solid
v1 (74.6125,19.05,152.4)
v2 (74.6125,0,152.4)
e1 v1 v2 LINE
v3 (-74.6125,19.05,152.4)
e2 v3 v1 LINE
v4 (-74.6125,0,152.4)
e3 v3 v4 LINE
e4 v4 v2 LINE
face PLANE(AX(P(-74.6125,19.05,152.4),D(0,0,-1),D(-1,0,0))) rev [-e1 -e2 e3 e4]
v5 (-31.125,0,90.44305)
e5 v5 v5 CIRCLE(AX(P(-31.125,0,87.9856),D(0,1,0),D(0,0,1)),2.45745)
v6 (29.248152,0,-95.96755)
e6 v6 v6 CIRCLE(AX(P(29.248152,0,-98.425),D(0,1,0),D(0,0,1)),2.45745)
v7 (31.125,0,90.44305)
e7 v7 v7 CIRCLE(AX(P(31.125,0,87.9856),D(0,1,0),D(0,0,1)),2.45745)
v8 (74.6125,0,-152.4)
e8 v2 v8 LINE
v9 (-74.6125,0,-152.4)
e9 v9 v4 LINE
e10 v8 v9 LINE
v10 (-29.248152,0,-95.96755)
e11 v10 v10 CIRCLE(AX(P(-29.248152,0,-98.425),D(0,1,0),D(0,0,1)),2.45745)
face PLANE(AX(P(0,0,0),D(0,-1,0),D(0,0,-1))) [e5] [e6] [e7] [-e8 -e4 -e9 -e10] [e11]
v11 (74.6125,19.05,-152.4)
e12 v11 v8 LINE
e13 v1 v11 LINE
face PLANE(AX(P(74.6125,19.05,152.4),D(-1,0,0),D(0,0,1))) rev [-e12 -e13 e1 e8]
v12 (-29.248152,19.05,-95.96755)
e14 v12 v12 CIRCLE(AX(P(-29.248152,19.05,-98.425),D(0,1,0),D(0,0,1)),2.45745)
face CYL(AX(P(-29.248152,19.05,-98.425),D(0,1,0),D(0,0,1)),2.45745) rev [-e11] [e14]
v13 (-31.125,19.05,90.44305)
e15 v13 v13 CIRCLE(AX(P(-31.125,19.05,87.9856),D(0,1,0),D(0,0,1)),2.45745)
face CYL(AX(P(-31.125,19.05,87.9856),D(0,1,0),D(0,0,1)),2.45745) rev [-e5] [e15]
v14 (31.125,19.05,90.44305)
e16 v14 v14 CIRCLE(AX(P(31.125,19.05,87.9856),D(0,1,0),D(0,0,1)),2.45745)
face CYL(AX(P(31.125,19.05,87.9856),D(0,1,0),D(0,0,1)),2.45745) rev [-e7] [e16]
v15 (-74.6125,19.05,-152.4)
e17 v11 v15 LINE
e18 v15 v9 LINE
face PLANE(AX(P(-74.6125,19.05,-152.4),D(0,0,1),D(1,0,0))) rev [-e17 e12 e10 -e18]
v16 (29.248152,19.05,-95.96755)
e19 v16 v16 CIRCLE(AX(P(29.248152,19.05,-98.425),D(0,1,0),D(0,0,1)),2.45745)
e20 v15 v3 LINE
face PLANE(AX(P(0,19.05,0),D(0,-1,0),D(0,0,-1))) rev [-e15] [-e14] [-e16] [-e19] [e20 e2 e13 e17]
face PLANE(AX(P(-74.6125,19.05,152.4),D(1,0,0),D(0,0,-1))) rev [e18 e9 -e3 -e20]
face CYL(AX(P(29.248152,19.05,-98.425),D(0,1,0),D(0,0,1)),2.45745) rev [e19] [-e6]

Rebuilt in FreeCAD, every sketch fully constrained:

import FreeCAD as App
import Part
import Sketcher
from FreeCAD import Vector
Q = App.Units.Quantity


def add_polygon(sketch, points):
    """Adds a closed chain of lines whose ends are joined by coincident constraints."""
    first, n = sketch.GeometryCount, len(points)
    for a, b in zip(points, points[1:] + points[:1]):
        sketch.addGeometry(Part.LineSegment(App.Vector(*a, 0), App.Vector(*b, 0)), False)
    for i in range(n):
        sketch.addConstraint(Sketcher.Constraint("Coincident", first + i, 2, first + (i + 1) % n, 1))

doc = App.newDocument("Part")
body = doc.addObject("PartDesign::Body", "Body")

sketch1 = body.newObject("Sketcher::SketchObject", "Sketch")
sketch1.AttachmentSupport = (doc.getObject("XZ_Plane"), [""])
sketch1.MapMode = "FlatFace"
add_polygon(sketch1, [(-74.6125, -152.4), (-74.6125, 152.4), (74.6125, 152.4), (74.6125, -152.4)])
sketch1.addConstraint([
    Sketcher.Constraint("Vertical", 0),
    Sketcher.Constraint("Horizontal", 1),
    Sketcher.Constraint("Vertical", 2),
    Sketcher.Constraint("Horizontal", 3),
    Sketcher.Constraint("Symmetric", 0, 2, 2, 2, -1, 1),
    Sketcher.Constraint("DistanceY", 0, 1, 0, 2, Q("12 in")),
    Sketcher.Constraint("DistanceX", 1, 1, 1, 2, Q("5.875 in")),
])
pad1 = body.newObject("PartDesign::Pad", "Pad")
pad1.Profile = sketch1
pad1.Length = Q("0.75 in")
pad1.Reversed = True

sketch2 = body.newObject("Sketcher::SketchObject", "Sketch001")
sketch2.AttachmentSupport = (doc.getObject("XZ_Plane"), [""])
sketch2.MapMode = "FlatFace"
sketch2.AttachmentOffset = App.Placement(Vector(0, 0, -0.75 * 25.4), App.Rotation())
sketch2.addGeometry([
    Part.Circle(Vector(-29.248152, -98.425, 0), Vector(0, 0, 1), 2.45745),
    Part.Circle(Vector(29.248152, -98.425, 0), Vector(0, 0, 1), 2.45745),
], False)
sketch2.addConstraint([
    Sketcher.Constraint("Equal", 0, 1),
    Sketcher.Constraint("Symmetric", 0, 3, 1, 3, -2),
    Sketcher.Constraint("Diameter", 0, Q("0.1935 in")),
    Sketcher.Constraint("DistanceY", 0, 3, -1, 1, Q("3.875 in")),
    Sketcher.Constraint("DistanceX", 0, 3, -1, 1, 29.248152),
])
doc.recompute()
hole = body.newObject("PartDesign::Hole", "Hole")
hole.Profile = sketch2
hole.ThreadType = "None"
hole.Diameter = Q("0.1935 in")
hole.DepthType = "ThroughAll"
hole.Reversed = True

sketch3 = body.newObject("Sketcher::SketchObject", "Sketch002")
sketch3.AttachmentSupport = (doc.getObject("XZ_Plane"), [""])
sketch3.MapMode = "FlatFace"
sketch3.AttachmentOffset = App.Placement(Vector(0, 0, -0.75 * 25.4), App.Rotation())
sketch3.addGeometry([
    Part.Circle(Vector(-31.125, 87.9856, 0), Vector(0, 0, 1), 2.45745),
    Part.Circle(Vector(31.125, 87.9856, 0), Vector(0, 0, 1), 2.45745),
], False)
sketch3.addConstraint([
    Sketcher.Constraint("Equal", 0, 1),
    Sketcher.Constraint("Symmetric", 0, 3, 1, 3, -2),
    Sketcher.Constraint("Diameter", 0, Q("0.1935 in")),
    Sketcher.Constraint("DistanceY", -1, 1, 0, 3, Q("3.464 in")),
    Sketcher.Constraint("DistanceX", 0, 3, -1, 1, 31.125),
])
doc.recompute()
hole2 = body.newObject("PartDesign::Hole", "Hole001")
hole2.Profile = sketch3
hole2.ThreadType = "None"
hole2.Diameter = Q("0.1935 in")
hole2.DepthType = "ThroughAll"
hole2.Reversed = True

doc.recompute()
